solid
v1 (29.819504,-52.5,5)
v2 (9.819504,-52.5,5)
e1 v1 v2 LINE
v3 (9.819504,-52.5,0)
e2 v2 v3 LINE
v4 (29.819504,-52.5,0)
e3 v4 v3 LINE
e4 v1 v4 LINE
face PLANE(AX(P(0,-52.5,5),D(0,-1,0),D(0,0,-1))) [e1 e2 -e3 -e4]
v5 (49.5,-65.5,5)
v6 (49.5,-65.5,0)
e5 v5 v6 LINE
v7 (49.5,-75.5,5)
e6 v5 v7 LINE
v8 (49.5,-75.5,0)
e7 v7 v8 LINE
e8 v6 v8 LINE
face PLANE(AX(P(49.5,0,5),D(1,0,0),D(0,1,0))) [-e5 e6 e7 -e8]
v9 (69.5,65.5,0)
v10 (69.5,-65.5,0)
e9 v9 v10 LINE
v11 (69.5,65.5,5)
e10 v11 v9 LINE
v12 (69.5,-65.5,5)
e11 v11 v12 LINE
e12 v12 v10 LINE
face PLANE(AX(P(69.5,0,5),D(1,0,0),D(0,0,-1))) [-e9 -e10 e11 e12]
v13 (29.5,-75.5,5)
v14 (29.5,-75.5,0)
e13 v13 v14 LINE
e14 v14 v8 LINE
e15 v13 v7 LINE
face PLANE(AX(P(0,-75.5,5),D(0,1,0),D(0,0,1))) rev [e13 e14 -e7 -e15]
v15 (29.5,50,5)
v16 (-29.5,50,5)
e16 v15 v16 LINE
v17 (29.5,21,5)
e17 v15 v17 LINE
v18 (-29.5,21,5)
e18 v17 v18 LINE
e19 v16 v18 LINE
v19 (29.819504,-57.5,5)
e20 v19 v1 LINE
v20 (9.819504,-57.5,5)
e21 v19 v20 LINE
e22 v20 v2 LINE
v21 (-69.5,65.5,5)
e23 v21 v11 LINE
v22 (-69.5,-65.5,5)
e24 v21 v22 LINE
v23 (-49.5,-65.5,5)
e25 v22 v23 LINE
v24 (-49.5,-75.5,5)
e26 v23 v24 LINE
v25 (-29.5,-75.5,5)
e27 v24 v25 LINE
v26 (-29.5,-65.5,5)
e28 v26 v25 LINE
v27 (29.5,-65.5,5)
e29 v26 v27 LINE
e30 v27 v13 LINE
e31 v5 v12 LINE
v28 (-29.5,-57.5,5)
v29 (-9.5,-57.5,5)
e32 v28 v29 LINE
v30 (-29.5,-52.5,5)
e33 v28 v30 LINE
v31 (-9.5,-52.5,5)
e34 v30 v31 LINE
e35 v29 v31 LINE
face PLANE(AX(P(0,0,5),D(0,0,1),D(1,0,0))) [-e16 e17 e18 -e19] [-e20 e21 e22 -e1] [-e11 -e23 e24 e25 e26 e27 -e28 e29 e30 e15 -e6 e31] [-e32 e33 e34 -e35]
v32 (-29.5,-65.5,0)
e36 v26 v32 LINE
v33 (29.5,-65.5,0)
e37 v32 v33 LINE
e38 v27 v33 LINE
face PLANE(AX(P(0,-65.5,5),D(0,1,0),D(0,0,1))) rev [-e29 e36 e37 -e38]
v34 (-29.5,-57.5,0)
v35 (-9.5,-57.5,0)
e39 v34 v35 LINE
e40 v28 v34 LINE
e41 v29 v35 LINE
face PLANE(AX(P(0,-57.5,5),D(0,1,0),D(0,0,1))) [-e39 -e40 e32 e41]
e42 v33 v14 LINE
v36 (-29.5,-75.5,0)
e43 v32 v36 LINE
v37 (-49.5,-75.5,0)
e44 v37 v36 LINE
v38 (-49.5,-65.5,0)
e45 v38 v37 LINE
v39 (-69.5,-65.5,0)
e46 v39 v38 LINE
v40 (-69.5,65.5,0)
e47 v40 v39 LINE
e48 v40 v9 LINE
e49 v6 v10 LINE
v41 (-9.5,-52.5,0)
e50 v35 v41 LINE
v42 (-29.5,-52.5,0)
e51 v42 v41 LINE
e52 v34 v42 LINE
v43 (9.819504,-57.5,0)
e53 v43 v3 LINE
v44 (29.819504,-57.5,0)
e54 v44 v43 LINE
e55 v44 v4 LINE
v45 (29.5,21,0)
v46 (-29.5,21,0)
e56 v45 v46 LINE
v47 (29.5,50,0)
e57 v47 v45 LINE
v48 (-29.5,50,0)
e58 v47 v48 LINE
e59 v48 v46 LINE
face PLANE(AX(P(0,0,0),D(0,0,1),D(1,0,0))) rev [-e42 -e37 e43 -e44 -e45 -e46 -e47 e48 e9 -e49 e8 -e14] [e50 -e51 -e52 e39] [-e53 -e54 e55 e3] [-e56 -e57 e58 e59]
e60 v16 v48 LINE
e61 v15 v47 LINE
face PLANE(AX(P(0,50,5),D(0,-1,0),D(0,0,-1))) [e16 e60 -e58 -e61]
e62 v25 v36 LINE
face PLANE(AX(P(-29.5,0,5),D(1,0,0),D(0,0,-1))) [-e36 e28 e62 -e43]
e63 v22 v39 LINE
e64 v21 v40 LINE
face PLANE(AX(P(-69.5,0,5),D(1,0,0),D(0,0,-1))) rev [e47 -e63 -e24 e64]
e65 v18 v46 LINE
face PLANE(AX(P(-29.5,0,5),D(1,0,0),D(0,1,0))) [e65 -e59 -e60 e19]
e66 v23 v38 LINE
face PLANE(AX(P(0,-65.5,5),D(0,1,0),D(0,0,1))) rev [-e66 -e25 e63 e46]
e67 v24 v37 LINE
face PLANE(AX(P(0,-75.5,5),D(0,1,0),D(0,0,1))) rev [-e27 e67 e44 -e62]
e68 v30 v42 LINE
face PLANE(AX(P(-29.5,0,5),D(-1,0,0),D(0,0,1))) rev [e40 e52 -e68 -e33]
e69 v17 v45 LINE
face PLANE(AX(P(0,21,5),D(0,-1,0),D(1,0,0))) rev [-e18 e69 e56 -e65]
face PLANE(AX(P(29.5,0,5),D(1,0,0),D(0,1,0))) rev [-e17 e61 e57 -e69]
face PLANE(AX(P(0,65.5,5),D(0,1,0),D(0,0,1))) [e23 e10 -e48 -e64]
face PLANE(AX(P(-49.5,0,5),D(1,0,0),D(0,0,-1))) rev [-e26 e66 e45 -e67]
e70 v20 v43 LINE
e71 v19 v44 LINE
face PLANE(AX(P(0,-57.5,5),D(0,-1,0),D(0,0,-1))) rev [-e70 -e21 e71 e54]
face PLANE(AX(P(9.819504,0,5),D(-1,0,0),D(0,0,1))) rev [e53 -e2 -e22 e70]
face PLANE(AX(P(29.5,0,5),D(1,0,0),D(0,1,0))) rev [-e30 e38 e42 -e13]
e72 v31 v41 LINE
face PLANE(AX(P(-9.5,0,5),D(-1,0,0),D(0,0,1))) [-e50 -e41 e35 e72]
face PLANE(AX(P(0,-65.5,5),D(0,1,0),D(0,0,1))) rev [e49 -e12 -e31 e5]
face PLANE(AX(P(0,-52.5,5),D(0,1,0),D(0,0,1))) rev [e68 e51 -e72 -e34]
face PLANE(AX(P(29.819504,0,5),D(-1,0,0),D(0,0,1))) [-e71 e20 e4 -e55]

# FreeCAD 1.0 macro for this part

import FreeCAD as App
import Part
import Sketcher
Q = App.Units.Quantity


def add_polygon(sketch, points):
    """Adds a closed chain of lines whose ends are joined by coincident constraints."""
    first, n = sketch.GeometryCount, len(points)
    for a, b in zip(points, points[1:] + points[:1]):
        sketch.addGeometry(Part.LineSegment(App.Vector(*a, 0), App.Vector(*b, 0)), False)
    for i in range(n):
        sketch.addConstraint(Sketcher.Constraint("Coincident", first + i, 2, first + (i + 1) % n, 1))

doc = App.newDocument("Part")
body = doc.addObject("PartDesign::Body", "Body")

# Sketch on XY plane
sketch1 = doc.addObject("Sketcher::SketchObject", "Sketch")
body.addObject(sketch1)
sketch1.AttachmentSupport = (doc.XY_Plane, [""])
sketch1.MapMode = "FlatFace"
add_polygon(sketch1, [(-70, 66), (-70, -66), (-50, -66), (-50, -76), (-30, -76), (-30, -66), (30, -66), (30, -76), (50, -76), (50, -66), (70, -66), (70, 66)])  # lines 0-11
add_polygon(sketch1, [(-10, -58), (-30, -58), (-30, -52), (-10, -52)])  # lines 12-15
add_polygon(sketch1, [(30, -58), (10, -58), (10, -52), (30, -52)])  # lines 16-19
add_polygon(sketch1, [(30, 21), (-30, 21), (-30, 50), (30, 50)])  # lines 20-23
sketch1.addConstraint(Sketcher.Constraint("Vertical", 0))
sketch1.addConstraint(Sketcher.Constraint("Horizontal", 1))
sketch1.addConstraint(Sketcher.Constraint("Vertical", 2))
sketch1.addConstraint(Sketcher.Constraint("Horizontal", 3))
sketch1.addConstraint(Sketcher.Constraint("Vertical", 4))
sketch1.addConstraint(Sketcher.Constraint("Horizontal", 5))
sketch1.addConstraint(Sketcher.Constraint("Vertical", 6))
sketch1.addConstraint(Sketcher.Constraint("Horizontal", 7))
sketch1.addConstraint(Sketcher.Constraint("Vertical", 8))
sketch1.addConstraint(Sketcher.Constraint("Horizontal", 9))
sketch1.addConstraint(Sketcher.Constraint("Vertical", 10))
sketch1.addConstraint(Sketcher.Constraint("Horizontal", 11))
sketch1.addConstraint(Sketcher.Constraint("Horizontal", 12))
sketch1.addConstraint(Sketcher.Constraint("Vertical", 13))
sketch1.addConstraint(Sketcher.Constraint("Horizontal", 14))
sketch1.addConstraint(Sketcher.Constraint("Vertical", 15))
sketch1.addConstraint(Sketcher.Constraint("Horizontal", 16))
sketch1.addConstraint(Sketcher.Constraint("Vertical", 17))
sketch1.addConstraint(Sketcher.Constraint("Horizontal", 18))
sketch1.addConstraint(Sketcher.Constraint("Vertical", 19))
sketch1.addConstraint(Sketcher.Constraint("Horizontal", 20))
sketch1.addConstraint(Sketcher.Constraint("Vertical", 21))
sketch1.addConstraint(Sketcher.Constraint("Horizontal", 22))
sketch1.addConstraint(Sketcher.Constraint("Vertical", 23))
sketch1.addConstraint(Sketcher.Constraint("Symmetric", 0, 2, 10, 2, -1, 1))
sketch1.addConstraint(Sketcher.Constraint("Symmetric", 3, 2, 6, 2, -2))
sketch1.addConstraint(Sketcher.Constraint("Symmetric", 1, 2, 8, 2, -2))
sketch1.addConstraint(Sketcher.Constraint("Horizontal", 1, 2, 4, 2))
sketch1.addConstraint(Sketcher.Constraint("Horizontal", 15, 2, 16, 2))
sketch1.addConstraint(Sketcher.Constraint("Horizontal", 14, 2, 17, 2))
sketch1.addConstraint(Sketcher.Constraint("Vertical", 4, 2, 12, 2))
sketch1.addConstraint(Sketcher.Constraint("Vertical", 13, 2, 20, 2))
sketch1.addConstraint(Sketcher.Constraint("Vertical", 6, 2, 22, 2))
sketch1.addConstraint(Sketcher.Constraint("Equal", 1, 3))
sketch1.addConstraint(Sketcher.Constraint("Equal", 9, 12))
sketch1.addConstraint(Sketcher.Constraint("Equal", 14, 16))
sketch1.addConstraint(Sketcher.Constraint("DistanceX", 1, 1, 1, 2, Q("20 mm")))
sketch1.addConstraint(Sketcher.Constraint("DistanceX", 5, 1, 5, 2, Q("59 mm")))
sketch1.addConstraint(Sketcher.Constraint("DistanceY", 0, 2, 0, 1, Q("131 mm")))
sketch1.addConstraint(Sketcher.Constraint("DistanceY", 2, 2, 2, 1, Q("10 mm")))
sketch1.addConstraint(Sketcher.Constraint("DistanceY", 13, 1, 13, 2, Q("5 mm")))
sketch1.addConstraint(Sketcher.Constraint("DistanceY", 21, 1, 21, 2, Q("29 mm")))
sketch1.addConstraint(Sketcher.Constraint("DistanceY", -1, 1, 20, 2, Q("21 mm")))
sketch1.addConstraint(Sketcher.Constraint("DistanceY", 4, 2, 12, 2, Q("8 mm")))
sketch1.addConstraint(Sketcher.Constraint("DistanceX", -1, 1, 16, 2, Q("9.819504 mm")))
pad1 = doc.addObject("PartDesign::Pad", "Pad")
body.addObject(pad1)
pad1.Profile = sketch1
pad1.Length = 5

doc.recompute()
